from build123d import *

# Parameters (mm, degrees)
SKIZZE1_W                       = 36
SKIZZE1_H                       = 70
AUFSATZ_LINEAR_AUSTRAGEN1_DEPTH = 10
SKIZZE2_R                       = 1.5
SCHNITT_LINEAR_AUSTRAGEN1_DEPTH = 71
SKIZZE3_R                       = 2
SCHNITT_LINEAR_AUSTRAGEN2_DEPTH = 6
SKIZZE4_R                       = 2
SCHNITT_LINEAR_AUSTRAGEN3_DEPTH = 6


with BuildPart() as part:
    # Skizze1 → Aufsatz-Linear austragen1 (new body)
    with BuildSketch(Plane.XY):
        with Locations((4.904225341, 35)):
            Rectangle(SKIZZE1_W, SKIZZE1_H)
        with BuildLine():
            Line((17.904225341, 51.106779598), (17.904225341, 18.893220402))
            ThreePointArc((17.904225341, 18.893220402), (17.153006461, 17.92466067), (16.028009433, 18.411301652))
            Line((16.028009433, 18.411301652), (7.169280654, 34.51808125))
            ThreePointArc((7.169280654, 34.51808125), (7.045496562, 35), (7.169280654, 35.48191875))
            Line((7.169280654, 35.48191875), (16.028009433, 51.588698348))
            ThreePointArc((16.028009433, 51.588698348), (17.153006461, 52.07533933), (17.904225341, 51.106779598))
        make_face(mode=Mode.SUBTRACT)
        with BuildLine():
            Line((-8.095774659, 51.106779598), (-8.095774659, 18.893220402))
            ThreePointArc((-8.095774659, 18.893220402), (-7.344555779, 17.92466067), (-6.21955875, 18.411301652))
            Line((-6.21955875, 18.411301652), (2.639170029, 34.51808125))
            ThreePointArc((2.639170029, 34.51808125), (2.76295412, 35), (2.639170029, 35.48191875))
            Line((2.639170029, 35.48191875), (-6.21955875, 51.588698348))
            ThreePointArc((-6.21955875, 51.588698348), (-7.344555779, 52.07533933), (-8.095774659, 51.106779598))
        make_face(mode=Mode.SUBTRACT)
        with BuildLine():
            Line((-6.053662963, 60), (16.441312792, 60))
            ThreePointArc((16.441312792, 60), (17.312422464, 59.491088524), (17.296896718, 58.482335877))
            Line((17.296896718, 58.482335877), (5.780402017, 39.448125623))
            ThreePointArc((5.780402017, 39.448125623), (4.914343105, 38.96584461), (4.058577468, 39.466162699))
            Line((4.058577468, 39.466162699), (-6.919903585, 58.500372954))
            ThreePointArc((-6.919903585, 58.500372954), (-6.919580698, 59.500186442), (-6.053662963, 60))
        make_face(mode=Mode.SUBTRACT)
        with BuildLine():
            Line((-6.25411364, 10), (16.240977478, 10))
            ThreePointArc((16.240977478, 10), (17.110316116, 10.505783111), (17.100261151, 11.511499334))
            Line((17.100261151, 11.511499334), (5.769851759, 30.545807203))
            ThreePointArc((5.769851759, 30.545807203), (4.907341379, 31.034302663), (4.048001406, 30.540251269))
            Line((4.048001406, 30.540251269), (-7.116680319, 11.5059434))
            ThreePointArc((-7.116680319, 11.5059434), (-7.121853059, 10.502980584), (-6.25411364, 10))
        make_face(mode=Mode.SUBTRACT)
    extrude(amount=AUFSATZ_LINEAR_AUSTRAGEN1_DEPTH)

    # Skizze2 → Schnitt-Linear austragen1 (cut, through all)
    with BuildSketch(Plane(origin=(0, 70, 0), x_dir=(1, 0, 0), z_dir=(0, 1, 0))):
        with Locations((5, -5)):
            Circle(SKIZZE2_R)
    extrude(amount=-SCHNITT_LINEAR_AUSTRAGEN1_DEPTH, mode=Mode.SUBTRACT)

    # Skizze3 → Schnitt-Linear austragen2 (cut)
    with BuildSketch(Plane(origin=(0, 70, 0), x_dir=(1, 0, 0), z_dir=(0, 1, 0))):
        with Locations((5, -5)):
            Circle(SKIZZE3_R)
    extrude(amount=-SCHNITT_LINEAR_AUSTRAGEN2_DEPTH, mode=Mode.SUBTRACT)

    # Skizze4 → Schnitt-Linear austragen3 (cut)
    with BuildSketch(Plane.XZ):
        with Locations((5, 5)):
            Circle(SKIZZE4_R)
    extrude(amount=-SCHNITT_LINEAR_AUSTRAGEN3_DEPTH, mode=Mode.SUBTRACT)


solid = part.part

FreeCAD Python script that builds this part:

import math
import FreeCAD as App
import Part
import Sketcher
from FreeCAD import Vector
Q = App.Units.Quantity


def add_polygon(sketch, points):
    """Adds a closed chain of lines whose ends are joined by coincident constraints."""
    first, n = sketch.GeometryCount, len(points)
    for a, b in zip(points, points[1:] + points[:1]):
        sketch.addGeometry(Part.LineSegment(App.Vector(*a, 0), App.Vector(*b, 0)), False)
    for i in range(n):
        sketch.addConstraint(Sketcher.Constraint("Coincident", first + i, 2, first + (i + 1) % n, 1))

doc = App.newDocument("Part")
body = doc.addObject("PartDesign::Body", "Body")

# Sketch on XY plane
sketch1 = doc.addObject("Sketcher::SketchObject", "Sketch")
body.addObject(sketch1)
sketch1.AttachmentSupport = (doc.XY_Plane, [""])
sketch1.MapMode = "FlatFace"
add_polygon(sketch1, [(-13.095775, 70), (-13.095775, 0), (22.904225, 0), (22.904225, 70)])  # lines 0-3
sketch1.addGeometry(Part.LineSegment(Vector(16.240977, 10, 0), Vector(-6.254114, 10, 0)), False)  # 4
sketch1.addGeometry(Part.ArcOfCircle(Part.Circle(Vector(-6.254114, 11, 0), Vector(0, 0, 1), 1), math.radians(149.606003), math.radians(270)), False)  # 5
sketch1.addGeometry(Part.LineSegment(Vector(-7.11668, 11.505943, 0), Vector(4.048001, 30.540251, 0)), False)  # 6
sketch1.addGeometry(Part.ArcOfCircle(Part.Circle(Vector(4.910568, 30.034308, 0), Vector(0, 0, 1), 1), math.radians(30.763751), math.radians(149.606003)), False)  # 7
sketch1.addGeometry(Part.LineSegment(Vector(5.769852, 30.545807, 0), Vector(17.100261, 11.511499, 0)), False)  # 8
sketch1.addGeometry(Part.ArcOfCircle(Part.Circle(Vector(16.240977, 11, 0), Vector(0, 0, 1), 1), math.radians(-90), math.radians(30.763751)), False)  # 9
sketch1.addGeometry(Part.LineSegment(Vector(-8.095775, 18.89322, 0), Vector(-8.095775, 51.10678, 0)), False)  # 10
sketch1.addGeometry(Part.ArcOfCircle(Part.Circle(Vector(-7.095775, 51.10678, 0), Vector(0, 0, 1), 1), math.radians(28.810794), math.radians(180)), False)  # 11
sketch1.addGeometry(Part.LineSegment(Vector(-6.219559, 51.588698, 0), Vector(2.63917, 35.481919, 0)), False)  # 12
sketch1.addGeometry(Part.ArcOfCircle(Part.Circle(Vector(1.762954, 35, 0), Vector(0, 0, 1), 1), math.radians(-28.810794), math.radians(28.810794)), False)  # 13
sketch1.addGeometry(Part.LineSegment(Vector(2.63917, 34.518081, 0), Vector(-6.219559, 18.411302, 0)), False)  # 14
sketch1.addGeometry(Part.ArcOfCircle(Part.Circle(Vector(-7.095775, 18.89322, 0), Vector(0, 0, 1), 1), math.radians(180), math.radians(331.189206)), False)  # 15
sketch1.addGeometry(Part.ArcOfCircle(Part.Circle(Vector(16.904225, 51.10678, 0), Vector(0, 0, 1), 1), math.radians(0), math.radians(151.189206)), False)  # 16
sketch1.addGeometry(Part.LineSegment(Vector(17.904225, 51.10678, 0), Vector(17.904225, 18.89322, 0)), False)  # 17
sketch1.addGeometry(Part.ArcOfCircle(Part.Circle(Vector(16.904225, 18.89322, 0), Vector(0, 0, 1), 1), math.radians(-151.189206), math.radians(0)), False)  # 18
sketch1.addGeometry(Part.LineSegment(Vector(16.028009, 18.411302, 0), Vector(7.169281, 34.518081, 0)), False)  # 19
sketch1.addGeometry(Part.ArcOfCircle(Part.Circle(Vector(8.045497, 35, 0), Vector(0, 0, 1), 1), math.radians(151.189206), math.radians(208.810794)), False)  # 20
sketch1.addGeometry(Part.LineSegment(Vector(7.169281, 35.481919, 0), Vector(16.028009, 51.588698, 0)), False)  # 21
sketch1.addGeometry(Part.ArcOfCircle(Part.Circle(Vector(-6.053663, 59, 0), Vector(0, 0, 1), 1), math.radians(90), math.radians(209.975329)), False)  # 22
sketch1.addGeometry(Part.LineSegment(Vector(-6.053663, 60, 0), Vector(16.441313, 60, 0)), False)  # 23
sketch1.addGeometry(Part.ArcOfCircle(Part.Circle(Vector(16.441313, 59, 0), Vector(0, 0, 1), 1), math.radians(-31.175696), math.radians(90)), False)  # 24
sketch1.addGeometry(Part.LineSegment(Vector(17.296897, 58.482336, 0), Vector(5.780402, 39.448126, 0)), False)  # 25
sketch1.addGeometry(Part.ArcOfCircle(Part.Circle(Vector(4.924818, 39.96579, 0), Vector(0, 0, 1), 1), math.radians(-150.024671), math.radians(-31.175696)), False)  # 26
sketch1.addGeometry(Part.LineSegment(Vector(4.058577, 39.466163, 0), Vector(-6.919904, 58.500373, 0)), False)  # 27
sketch1.addConstraint([
    Sketcher.Constraint("Coincident", 4, 2, 5, 2),
    Sketcher.Constraint("Coincident", 5, 1, 6, 1),
    Sketcher.Constraint("Coincident", 6, 2, 7, 2),
    Sketcher.Constraint("Coincident", 7, 1, 8, 1),
    Sketcher.Constraint("Coincident", 8, 2, 9, 2),
    Sketcher.Constraint("Coincident", 9, 1, 4, 1),
    Sketcher.Constraint("Coincident", 10, 2, 11, 2),
    Sketcher.Constraint("Coincident", 11, 1, 12, 1),
    Sketcher.Constraint("Coincident", 12, 2, 13, 2),
    Sketcher.Constraint("Coincident", 13, 1, 14, 1),
    Sketcher.Constraint("Coincident", 14, 2, 15, 2),
    Sketcher.Constraint("Coincident", 15, 1, 10, 1),
    Sketcher.Constraint("Coincident", 16, 1, 17, 1),
    Sketcher.Constraint("Coincident", 17, 2, 18, 2),
    Sketcher.Constraint("Coincident", 18, 1, 19, 1),
    Sketcher.Constraint("Coincident", 19, 2, 20, 2),
    Sketcher.Constraint("Coincident", 20, 1, 21, 1),
    Sketcher.Constraint("Coincident", 21, 2, 16, 2),
    Sketcher.Constraint("Coincident", 22, 1, 23, 1),
    Sketcher.Constraint("Coincident", 23, 2, 24, 2),
    Sketcher.Constraint("Coincident", 24, 1, 25, 1),
    Sketcher.Constraint("Coincident", 25, 2, 26, 2),
    Sketcher.Constraint("Coincident", 26, 1, 27, 1),
    Sketcher.Constraint("Coincident", 27, 2, 22, 2),
    Sketcher.Constraint("Vertical", 0),
    Sketcher.Constraint("Horizontal", 1),
    Sketcher.Constraint("Vertical", 2),
    Sketcher.Constraint("Horizontal", 3),
    Sketcher.Constraint("Horizontal", 4),
    Sketcher.Constraint("Vertical", 10),
    Sketcher.Constraint("Vertical", 17),
    Sketcher.Constraint("Horizontal", 23),
    Sketcher.Constraint("PointOnObject", 0, 2, -1),
    Sketcher.Constraint("Radius", 5, Q("1 mm")),
    Sketcher.Constraint("Radius", 7, Q("1 mm")),
    Sketcher.Constraint("Radius", 9, Q("1 mm")),
    Sketcher.Constraint("Radius", 11, Q("1 mm")),
    Sketcher.Constraint("Radius", 13, Q("1 mm")),
    Sketcher.Constraint("Radius", 15, Q("1 mm")),
    Sketcher.Constraint("Radius", 16, Q("1 mm")),
    Sketcher.Constraint("Radius", 18, Q("1 mm")),
    Sketcher.Constraint("Radius", 20, Q("1 mm")),
    Sketcher.Constraint("Radius", 22, Q("1 mm")),
    Sketcher.Constraint("Radius", 24, Q("1 mm")),
    Sketcher.Constraint("Radius", 26, Q("1 mm")),
    Sketcher.Constraint("DistanceX", 1, 1, 1, 2, Q("36 mm")),
    Sketcher.Constraint("DistanceY", 0, 2, 0, 1, Q("70 mm")),
    Sketcher.Constraint("DistanceY", -1, 1, 5, 3, Q("11 mm")),
    Sketcher.Constraint("DistanceY", -1, 1, 13, 3, Q("35 mm")),
    Sketcher.Constraint("DistanceY", -1, 1, 20, 3, Q("35 mm")),
    Sketcher.Constraint("DistanceY", -1, 1, 22, 3, Q("59 mm")),
    Sketcher.Constraint("DistanceX", 11, 3, 16, 3, Q("24 mm")),
    Sketcher.Constraint("DistanceX", 0, 2, 15, 3, Q("6 mm")),
    Sketcher.Constraint("DistanceX", -1, 1, 6, 2, Q("4.048001 mm")),
    Sketcher.Constraint("DistanceX", 4, 2, 4, 1, Q("22.495091 mm")),
    Sketcher.Constraint("DistanceY", 10, 1, 10, 2, Q("32.213559 mm")),
    Sketcher.Constraint("DistanceY", 17, 2, 17, 1, Q("32.213559 mm")),
    Sketcher.Constraint("DistanceY", -1, 1, 8, 2, Q("11.511499 mm")),
    Sketcher.Constraint("DistanceY", -1, 1, 11, 1, Q("51.588698 mm")),
    Sketcher.Constraint("DistanceY", -1, 1, 14, 2, Q("18.411302 mm")),
    Sketcher.Constraint("DistanceY", -1, 1, 18, 1, Q("18.411302 mm")),
    Sketcher.Constraint("DistanceY", -1, 1, 21, 2, Q("51.588698 mm")),
    Sketcher.Constraint("DistanceY", 7, 3, 7, 1, Q("0.511499 mm")),
    Sketcher.Constraint("DistanceX", 13, 1, 7, 3, Q("2.271398 mm")),
    Sketcher.Constraint("Distance", 25, Q("22.24704 mm")),
    Sketcher.Constraint("DistanceX", 23, 1, 23, 2, Q("22.494976 mm")),
    Sketcher.Constraint("DistanceX", -1, 1, 7, 3, Q("4.910568 mm")),
    Sketcher.Constraint("DistanceY", -1, 1, 11, 3, Q("51.10678 mm")),
    Sketcher.Constraint("DistanceY", -1, 1, 15, 3, Q("18.89322 mm")),
    Sketcher.Constraint("DistanceY", -1, 1, 16, 3, Q("51.10678 mm")),
    Sketcher.Constraint("DistanceY", -1, 1, 18, 3, Q("18.89322 mm")),
    Sketcher.Constraint("DistanceX", -1, 1, 26, 3, Q("4.924818 mm")),
    Sketcher.Constraint("DistanceY", -1, 1, 26, 3, Q("39.96579 mm")),
    Sketcher.Constraint("DistanceX", 5, 1, -1, 1, Q("7.11668 mm")),
    Sketcher.Constraint("DistanceY", -1, 1, 6, 2, Q("30.540251 mm")),
    Sketcher.Constraint("DistanceX", -1, 1, 8, 2, Q("17.100261 mm")),
    Sketcher.Constraint("DistanceY", -1, 1, 10, 2, Q("51.10678 mm")),
    Sketcher.Constraint("DistanceX", 11, 1, -1, 1, Q("6.219559 mm")),
    Sketcher.Constraint("DistanceX", -1, 1, 12, 2, Q("2.63917 mm")),
    Sketcher.Constraint("DistanceY", -1, 1, 12, 2, Q("35.481919 mm")),
    Sketcher.Constraint("DistanceY", -1, 1, 16, 1, Q("51.10678 mm")),
    Sketcher.Constraint("DistanceX", -1, 1, 19, 2, Q("7.169281 mm")),
    Sketcher.Constraint("DistanceY", -1, 1, 19, 2, Q("34.518081 mm")),
    Sketcher.Constraint("DistanceX", -1, 1, 20, 1, Q("7.169281 mm")),
    Sketcher.Constraint("DistanceX", 5, 3, 7, 3, Q("11.164682 mm")),
    Sketcher.Constraint("DistanceX", 11, 3, 22, 3, Q("1.042112 mm")),
    Sketcher.Constraint("DistanceX", 13, 3, 24, 3, Q("14.678359 mm")),
    Sketcher.Constraint("DistanceX", 15, 3, 4, 2, Q("0.841661 mm")),
    Sketcher.Constraint("DistanceX", 11, 3, 22, 1, Q("1.042112 mm")),
    Sketcher.Constraint("DistanceX", 16, 3, 24, 1, Q("0.392671 mm")),
    Sketcher.Constraint("DistanceX", 26, 1, 26, 3, Q("0.866241 mm")),
    Sketcher.Constraint("DistanceX", 27, 2, 22, 3, Q("0.866241 mm")),
])
pad1 = doc.addObject("PartDesign::Pad", "Pad")
body.addObject(pad1)
pad1.Profile = sketch1
pad1.Length = 10

# Sketch on XZ plane
sketch2 = doc.addObject("Sketcher::SketchObject", "Sketch001")
body.addObject(sketch2)
sketch2.AttachmentSupport = (doc.XZ_Plane, [""])
sketch2.MapMode = "FlatFace"
sketch2.AttachmentOffset = App.Placement(Vector(0, 0, -70), App.Rotation())
sketch2.addGeometry(Part.Circle(Vector(5, 5, 0), Vector(0, 0, 1), 1.5), False)
sketch2.addConstraint([
    Sketcher.Constraint("Diameter", 0, Q("3 mm")),
    Sketcher.Constraint("DistanceX", -1, 1, 0, 3, Q("5 mm")),
    Sketcher.Constraint("DistanceY", -1, 1, 0, 3, Q("5 mm")),
])
pocket1 = doc.addObject("PartDesign::Pocket", "Pocket")
body.addObject(pocket1)
pocket1.Profile = sketch2
pocket1.Type = "ThroughAll"
pocket1.Reversed = True

# Sketch on XZ plane
sketch3 = doc.addObject("Sketcher::SketchObject", "Sketch002")
body.addObject(sketch3)
sketch3.AttachmentSupport = (doc.XZ_Plane, [""])
sketch3.MapMode = "FlatFace"
sketch3.AttachmentOffset = App.Placement(Vector(0, 0, -70), App.Rotation())
sketch3.addGeometry(Part.Circle(Vector(5, 5, 0), Vector(0, 0, 1), 2), False)
sketch3.addConstraint([
    Sketcher.Constraint("Diameter", 0, Q("4 mm")),
    Sketcher.Constraint("DistanceX", -1, 1, 0, 3, Q("5 mm")),
    Sketcher.Constraint("DistanceY", -1, 1, 0, 3, Q("5 mm")),
])
pocket2 = doc.addObject("PartDesign::Pocket", "Pocket001")
body.addObject(pocket2)
pocket2.Profile = sketch3
pocket2.Length = 6
pocket2.Reversed = True

# Sketch on XZ plane
sketch4 = doc.addObject("Sketcher::SketchObject", "Sketch003")
body.addObject(sketch4)
sketch4.AttachmentSupport = (doc.XZ_Plane, [""])
sketch4.MapMode = "FlatFace"
sketch4.addGeometry(Part.Circle(Vector(5, 5, 0), Vector(0, 0, 1), 2), False)
sketch4.addConstraint([
    Sketcher.Constraint("Diameter", 0, Q("4 mm")),
    Sketcher.Constraint("DistanceX", -1, 1, 0, 3, Q("5 mm")),
    Sketcher.Constraint("DistanceY", -1, 1, 0, 3, Q("5 mm")),
])
pocket3 = doc.addObject("PartDesign::Pocket", "Pocket002")
body.addObject(pocket3)
pocket3.Profile = sketch4
pocket3.Length = 6

doc.recompute()
